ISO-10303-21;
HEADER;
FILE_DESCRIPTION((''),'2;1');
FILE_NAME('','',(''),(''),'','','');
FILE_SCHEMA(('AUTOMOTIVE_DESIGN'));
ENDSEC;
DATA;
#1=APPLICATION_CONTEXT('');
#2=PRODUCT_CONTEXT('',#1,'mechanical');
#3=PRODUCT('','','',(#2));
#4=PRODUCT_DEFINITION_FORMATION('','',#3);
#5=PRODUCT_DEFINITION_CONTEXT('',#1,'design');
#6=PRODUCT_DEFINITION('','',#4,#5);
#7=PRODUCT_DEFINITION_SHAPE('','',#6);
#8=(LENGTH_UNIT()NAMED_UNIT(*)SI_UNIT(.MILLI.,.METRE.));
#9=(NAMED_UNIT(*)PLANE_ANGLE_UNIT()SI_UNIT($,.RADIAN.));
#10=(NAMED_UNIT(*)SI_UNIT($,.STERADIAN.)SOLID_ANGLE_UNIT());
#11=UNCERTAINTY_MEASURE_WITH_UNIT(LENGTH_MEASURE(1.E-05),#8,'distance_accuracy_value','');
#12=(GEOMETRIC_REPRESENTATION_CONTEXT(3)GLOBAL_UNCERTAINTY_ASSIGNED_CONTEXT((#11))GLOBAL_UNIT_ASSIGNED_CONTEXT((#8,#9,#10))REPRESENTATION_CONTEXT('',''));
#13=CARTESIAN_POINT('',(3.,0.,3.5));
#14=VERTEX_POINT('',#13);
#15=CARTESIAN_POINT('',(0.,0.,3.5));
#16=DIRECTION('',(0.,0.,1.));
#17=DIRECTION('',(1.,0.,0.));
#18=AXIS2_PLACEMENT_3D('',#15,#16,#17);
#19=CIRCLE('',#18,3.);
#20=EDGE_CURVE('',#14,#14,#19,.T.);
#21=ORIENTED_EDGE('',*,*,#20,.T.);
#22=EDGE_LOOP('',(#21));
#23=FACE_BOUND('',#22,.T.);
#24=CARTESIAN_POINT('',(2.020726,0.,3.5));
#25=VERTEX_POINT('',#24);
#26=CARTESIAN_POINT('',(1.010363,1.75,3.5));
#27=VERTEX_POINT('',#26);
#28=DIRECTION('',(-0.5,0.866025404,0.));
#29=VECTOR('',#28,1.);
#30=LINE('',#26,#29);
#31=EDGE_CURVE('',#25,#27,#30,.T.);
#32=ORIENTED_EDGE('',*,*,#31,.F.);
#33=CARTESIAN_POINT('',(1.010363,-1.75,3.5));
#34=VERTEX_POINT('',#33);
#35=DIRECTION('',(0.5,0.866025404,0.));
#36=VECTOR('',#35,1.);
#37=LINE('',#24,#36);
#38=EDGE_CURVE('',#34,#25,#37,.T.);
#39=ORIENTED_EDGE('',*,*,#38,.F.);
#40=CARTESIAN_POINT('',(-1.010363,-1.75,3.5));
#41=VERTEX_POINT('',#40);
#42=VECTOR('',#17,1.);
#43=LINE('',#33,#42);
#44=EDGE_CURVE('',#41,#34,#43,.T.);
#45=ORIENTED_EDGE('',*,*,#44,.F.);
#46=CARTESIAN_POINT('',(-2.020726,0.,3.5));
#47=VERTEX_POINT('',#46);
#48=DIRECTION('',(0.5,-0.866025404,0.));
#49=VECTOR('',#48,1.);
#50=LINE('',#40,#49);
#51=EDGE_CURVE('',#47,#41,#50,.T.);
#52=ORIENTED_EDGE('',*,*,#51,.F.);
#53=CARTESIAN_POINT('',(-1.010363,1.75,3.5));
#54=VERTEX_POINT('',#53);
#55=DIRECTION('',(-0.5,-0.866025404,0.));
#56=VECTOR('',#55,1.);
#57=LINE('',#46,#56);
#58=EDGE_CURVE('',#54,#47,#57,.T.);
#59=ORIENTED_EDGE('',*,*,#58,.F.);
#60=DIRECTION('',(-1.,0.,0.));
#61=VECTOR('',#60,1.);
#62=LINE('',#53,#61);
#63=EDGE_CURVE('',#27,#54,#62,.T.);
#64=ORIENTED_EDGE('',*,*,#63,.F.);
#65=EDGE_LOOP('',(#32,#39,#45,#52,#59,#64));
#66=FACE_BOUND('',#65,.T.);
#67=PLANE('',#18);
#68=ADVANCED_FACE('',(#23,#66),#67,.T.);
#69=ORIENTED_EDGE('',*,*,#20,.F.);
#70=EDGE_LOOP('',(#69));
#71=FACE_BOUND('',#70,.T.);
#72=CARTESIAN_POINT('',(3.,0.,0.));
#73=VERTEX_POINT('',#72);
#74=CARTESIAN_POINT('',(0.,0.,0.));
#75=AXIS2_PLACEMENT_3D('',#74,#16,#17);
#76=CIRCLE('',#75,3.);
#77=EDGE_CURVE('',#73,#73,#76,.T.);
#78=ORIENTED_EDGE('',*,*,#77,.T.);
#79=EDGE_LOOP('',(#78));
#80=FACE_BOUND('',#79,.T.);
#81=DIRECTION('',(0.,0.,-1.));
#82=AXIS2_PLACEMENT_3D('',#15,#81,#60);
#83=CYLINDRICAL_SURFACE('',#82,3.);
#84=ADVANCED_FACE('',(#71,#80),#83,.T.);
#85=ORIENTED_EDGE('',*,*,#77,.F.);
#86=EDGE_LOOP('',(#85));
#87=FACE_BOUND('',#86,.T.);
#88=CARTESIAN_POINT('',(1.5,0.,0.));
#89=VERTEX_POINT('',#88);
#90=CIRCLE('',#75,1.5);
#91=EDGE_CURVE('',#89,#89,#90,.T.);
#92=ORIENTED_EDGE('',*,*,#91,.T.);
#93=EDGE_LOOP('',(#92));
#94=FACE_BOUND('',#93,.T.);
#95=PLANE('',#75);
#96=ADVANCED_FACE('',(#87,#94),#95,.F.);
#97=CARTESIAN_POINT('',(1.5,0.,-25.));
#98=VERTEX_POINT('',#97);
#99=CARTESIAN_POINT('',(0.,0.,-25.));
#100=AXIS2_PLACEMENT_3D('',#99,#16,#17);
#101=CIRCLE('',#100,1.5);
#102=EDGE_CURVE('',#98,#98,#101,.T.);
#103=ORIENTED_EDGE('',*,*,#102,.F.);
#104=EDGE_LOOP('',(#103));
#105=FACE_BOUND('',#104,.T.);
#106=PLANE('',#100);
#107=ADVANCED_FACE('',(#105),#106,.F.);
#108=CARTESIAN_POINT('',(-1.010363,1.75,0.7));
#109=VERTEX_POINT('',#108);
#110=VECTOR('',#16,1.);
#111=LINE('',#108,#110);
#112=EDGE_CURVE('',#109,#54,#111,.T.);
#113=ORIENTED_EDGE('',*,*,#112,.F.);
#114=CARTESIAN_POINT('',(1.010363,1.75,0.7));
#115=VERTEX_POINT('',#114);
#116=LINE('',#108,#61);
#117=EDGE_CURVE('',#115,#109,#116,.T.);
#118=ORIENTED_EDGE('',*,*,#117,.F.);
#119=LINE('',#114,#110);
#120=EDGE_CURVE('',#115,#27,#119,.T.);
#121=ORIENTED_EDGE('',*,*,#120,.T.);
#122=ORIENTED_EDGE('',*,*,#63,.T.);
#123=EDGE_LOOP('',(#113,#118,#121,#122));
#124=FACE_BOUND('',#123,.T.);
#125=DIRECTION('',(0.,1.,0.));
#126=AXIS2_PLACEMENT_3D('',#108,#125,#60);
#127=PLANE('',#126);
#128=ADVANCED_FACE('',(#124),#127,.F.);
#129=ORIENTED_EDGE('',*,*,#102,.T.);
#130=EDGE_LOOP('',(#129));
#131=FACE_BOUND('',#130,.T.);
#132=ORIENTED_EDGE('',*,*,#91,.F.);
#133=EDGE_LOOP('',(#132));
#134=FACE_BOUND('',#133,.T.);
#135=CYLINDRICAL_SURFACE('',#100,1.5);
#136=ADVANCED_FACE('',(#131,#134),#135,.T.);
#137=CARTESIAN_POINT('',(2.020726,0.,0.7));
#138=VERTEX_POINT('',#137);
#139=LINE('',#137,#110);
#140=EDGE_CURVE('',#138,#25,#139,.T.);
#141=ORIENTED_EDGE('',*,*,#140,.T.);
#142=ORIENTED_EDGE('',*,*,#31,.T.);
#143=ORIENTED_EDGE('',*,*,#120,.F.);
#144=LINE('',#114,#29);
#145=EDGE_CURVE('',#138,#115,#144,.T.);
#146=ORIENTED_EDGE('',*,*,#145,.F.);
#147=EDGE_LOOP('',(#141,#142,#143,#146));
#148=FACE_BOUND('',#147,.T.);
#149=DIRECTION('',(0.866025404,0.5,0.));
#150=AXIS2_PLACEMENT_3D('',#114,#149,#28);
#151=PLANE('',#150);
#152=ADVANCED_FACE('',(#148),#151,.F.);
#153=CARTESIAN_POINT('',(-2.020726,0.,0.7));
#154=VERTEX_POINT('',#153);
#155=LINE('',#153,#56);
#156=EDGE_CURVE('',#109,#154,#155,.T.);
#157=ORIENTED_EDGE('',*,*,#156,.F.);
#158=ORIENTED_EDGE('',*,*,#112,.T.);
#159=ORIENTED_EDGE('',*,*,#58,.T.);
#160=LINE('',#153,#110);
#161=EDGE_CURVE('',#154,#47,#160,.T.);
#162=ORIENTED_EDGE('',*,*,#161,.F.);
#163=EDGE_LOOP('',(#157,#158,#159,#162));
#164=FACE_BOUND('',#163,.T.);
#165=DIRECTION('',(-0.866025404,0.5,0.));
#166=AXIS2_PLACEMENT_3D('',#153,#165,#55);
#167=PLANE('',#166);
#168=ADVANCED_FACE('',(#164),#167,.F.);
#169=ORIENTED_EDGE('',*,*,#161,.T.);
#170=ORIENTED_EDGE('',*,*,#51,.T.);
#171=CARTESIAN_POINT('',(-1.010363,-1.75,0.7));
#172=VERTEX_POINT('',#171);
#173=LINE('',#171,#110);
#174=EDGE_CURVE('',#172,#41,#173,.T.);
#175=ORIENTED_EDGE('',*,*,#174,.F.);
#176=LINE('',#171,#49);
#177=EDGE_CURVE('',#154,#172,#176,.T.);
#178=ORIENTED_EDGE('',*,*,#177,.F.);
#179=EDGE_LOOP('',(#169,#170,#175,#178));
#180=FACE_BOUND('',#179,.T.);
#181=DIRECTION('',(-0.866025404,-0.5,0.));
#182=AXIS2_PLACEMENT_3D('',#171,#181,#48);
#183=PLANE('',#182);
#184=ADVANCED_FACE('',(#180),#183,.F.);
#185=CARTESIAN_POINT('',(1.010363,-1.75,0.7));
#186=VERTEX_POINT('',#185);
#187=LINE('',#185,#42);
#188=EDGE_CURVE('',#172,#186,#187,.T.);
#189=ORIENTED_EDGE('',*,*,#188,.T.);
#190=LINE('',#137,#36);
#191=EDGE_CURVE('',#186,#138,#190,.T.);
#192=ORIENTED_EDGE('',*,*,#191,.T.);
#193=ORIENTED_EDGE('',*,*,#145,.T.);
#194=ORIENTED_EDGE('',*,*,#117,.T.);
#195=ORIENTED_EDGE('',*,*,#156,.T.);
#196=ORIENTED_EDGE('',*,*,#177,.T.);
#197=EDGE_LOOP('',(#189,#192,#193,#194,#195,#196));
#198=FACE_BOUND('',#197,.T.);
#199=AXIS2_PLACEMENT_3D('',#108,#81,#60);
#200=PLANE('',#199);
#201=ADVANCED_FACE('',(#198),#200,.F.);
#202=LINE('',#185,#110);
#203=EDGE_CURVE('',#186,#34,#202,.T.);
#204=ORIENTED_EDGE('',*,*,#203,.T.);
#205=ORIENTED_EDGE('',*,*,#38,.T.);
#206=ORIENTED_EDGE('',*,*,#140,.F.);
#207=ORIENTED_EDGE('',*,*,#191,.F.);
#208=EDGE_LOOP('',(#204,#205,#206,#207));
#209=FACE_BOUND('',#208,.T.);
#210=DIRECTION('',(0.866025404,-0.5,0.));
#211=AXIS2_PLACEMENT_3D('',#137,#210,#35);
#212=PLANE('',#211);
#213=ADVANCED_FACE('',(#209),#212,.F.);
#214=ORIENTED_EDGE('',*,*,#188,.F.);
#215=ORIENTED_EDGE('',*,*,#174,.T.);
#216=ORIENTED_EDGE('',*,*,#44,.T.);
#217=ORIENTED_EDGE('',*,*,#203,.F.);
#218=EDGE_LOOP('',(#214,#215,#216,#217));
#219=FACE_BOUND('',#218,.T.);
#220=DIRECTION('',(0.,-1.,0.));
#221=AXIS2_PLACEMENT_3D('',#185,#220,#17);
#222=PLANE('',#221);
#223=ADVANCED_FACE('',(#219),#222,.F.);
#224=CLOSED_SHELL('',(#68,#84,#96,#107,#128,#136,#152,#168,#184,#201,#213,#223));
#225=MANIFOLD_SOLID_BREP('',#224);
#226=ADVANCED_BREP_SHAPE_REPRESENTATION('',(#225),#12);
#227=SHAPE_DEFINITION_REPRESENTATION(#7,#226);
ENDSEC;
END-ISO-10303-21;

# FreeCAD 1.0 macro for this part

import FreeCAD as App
import Part
import Sketcher
Q = App.Units.Quantity

doc = App.newDocument("Part")
body = doc.addObject("PartDesign::Body", "Body")

sketch1 = body.newObject("Sketcher::SketchObject", "Sketch")
sketch1.AttachmentSupport = (doc.getObject("XY_Plane"), [""])
sketch1.MapMode = "FlatFace"
sketch1.addGeometry(Part.Circle(App.Vector(0, 0, 0), App.Vector(0, 0, 1), 3), False)
sketch1.addConstraint([
    Sketcher.Constraint("Coincident", 0, 3, -1, 1),
    Sketcher.Constraint("Diameter", 0, Q("6 mm")),
])
pad1 = body.newObject("PartDesign::Pad", "Pad")
pad1.Profile = sketch1
pad1.Length = 3.5

sketch2 = body.newObject("Sketcher::SketchObject", "Sketch001")
sketch2.AttachmentSupport = (doc.getObject("XY_Plane"), [""])
sketch2.MapMode = "FlatFace"
sketch2.AttachmentOffset = App.Placement(App.Vector(0, 0, 3.5), App.Rotation())
sketch2.addGeometry([
    Part.LineSegment(App.Vector(1.010363, 1.75, 0), App.Vector(-1.010363, 1.75, 0)),
    Part.LineSegment(App.Vector(-1.010363, 1.75, 0), App.Vector(-2.020726, 0, 0)),
    Part.LineSegment(App.Vector(-2.020726, 0, 0), App.Vector(-1.010363, -1.75, 0)),
    Part.LineSegment(App.Vector(-1.010363, -1.75, 0), App.Vector(1.010363, -1.75, 0)),
    Part.LineSegment(App.Vector(1.010363, -1.75, 0), App.Vector(2.020726, 0, 0)),
    Part.LineSegment(App.Vector(2.020726, 0, 0), App.Vector(1.010363, 1.75, 0)),
], False)
sketch2.addConstraint([
    Sketcher.Constraint("Coincident", 0, 2, 1, 1),
    Sketcher.Constraint("Coincident", 1, 2, 2, 1),
    Sketcher.Constraint("Coincident", 2, 2, 3, 1),
    Sketcher.Constraint("Coincident", 3, 2, 4, 1),
    Sketcher.Constraint("Coincident", 4, 2, 5, 1),
    Sketcher.Constraint("Coincident", 5, 2, 0, 1),
    Sketcher.Constraint("Horizontal", 0),
    Sketcher.Constraint("Horizontal", 3),
    Sketcher.Constraint("Symmetric", 0, 2, 3, 2, -1, 1),
    Sketcher.Constraint("Symmetric", 1, 2, 4, 2, -1, 1),
    Sketcher.Constraint("PointOnObject", 1, 2, -1),
    Sketcher.Constraint("Parallel", 2, 5),
    Sketcher.Constraint("Vertical", 0, 2, 2, 2),
    Sketcher.Constraint("Angle", 1, Q("-120 deg")),
    Sketcher.Constraint("DistanceY", 2, 2, 0, 2, Q("3.5 mm")),
    Sketcher.Constraint("DistanceX", 0, 2, 0, 1, Q("2.020726 mm")),
])
pocket1 = body.newObject("PartDesign::Pocket", "Pocket")
pocket1.Profile = sketch2
pocket1.Length = 2.8

sketch3 = body.newObject("Sketcher::SketchObject", "Sketch002")
sketch3.AttachmentSupport = (doc.getObject("XY_Plane"), [""])
sketch3.MapMode = "FlatFace"
sketch3.addGeometry(Part.Circle(App.Vector(0, 0, 0), App.Vector(0, 0, 1), 1.5), False)
sketch3.addConstraint([
    Sketcher.Constraint("Coincident", 0, 3, -1, 1),
    Sketcher.Constraint("Diameter", 0, Q("3 mm")),
])
pad2 = body.newObject("PartDesign::Pad", "Pad001")
pad2.Profile = sketch3
pad2.Length = 25
pad2.Reversed = True

doc.recompute()
